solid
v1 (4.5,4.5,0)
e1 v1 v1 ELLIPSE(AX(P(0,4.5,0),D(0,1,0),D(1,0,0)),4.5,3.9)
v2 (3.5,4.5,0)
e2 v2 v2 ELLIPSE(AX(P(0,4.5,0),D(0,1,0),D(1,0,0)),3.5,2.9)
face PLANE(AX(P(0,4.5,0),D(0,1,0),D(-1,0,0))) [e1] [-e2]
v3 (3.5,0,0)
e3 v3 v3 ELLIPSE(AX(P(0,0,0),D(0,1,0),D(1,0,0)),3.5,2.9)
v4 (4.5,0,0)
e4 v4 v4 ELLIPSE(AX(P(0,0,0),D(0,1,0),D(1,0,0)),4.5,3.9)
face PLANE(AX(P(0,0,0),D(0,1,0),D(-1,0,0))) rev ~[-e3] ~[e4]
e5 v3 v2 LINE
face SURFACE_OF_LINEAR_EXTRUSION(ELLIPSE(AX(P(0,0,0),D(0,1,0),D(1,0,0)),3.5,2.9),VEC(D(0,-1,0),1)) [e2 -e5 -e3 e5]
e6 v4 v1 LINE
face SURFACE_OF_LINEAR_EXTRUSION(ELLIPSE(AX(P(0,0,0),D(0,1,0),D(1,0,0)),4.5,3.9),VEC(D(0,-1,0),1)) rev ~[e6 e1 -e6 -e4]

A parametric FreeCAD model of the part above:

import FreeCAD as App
import Part
import Sketcher

doc = App.newDocument("Part")
body = doc.addObject("PartDesign::Body", "Body")

# Sketch on XZ plane
sketch1 = body.newObject("Sketcher::SketchObject", "Sketch")
sketch1.AttachmentSupport = (doc.getObject("XZ_Plane"), [""])
sketch1.MapMode = "FlatFace"
sketch1.addGeometry(Part.Ellipse(App.Vector(4.5, 0, 0), App.Vector(0, 3.9, 0), App.Vector(0, 0, 0)), False)
sketch1.addGeometry(Part.Ellipse(App.Vector(3.5, 0, 0), App.Vector(0, 2.9, 0), App.Vector(0, 0, 0)), False)
sketch1.addConstraint(Sketcher.Constraint("Block", 0))
sketch1.addConstraint(Sketcher.Constraint("Block", 1))
pad1 = body.newObject("PartDesign::Pad", "Pad")
pad1.Profile = sketch1
pad1.Length = 4.5
pad1.Reversed = True

doc.recompute()
